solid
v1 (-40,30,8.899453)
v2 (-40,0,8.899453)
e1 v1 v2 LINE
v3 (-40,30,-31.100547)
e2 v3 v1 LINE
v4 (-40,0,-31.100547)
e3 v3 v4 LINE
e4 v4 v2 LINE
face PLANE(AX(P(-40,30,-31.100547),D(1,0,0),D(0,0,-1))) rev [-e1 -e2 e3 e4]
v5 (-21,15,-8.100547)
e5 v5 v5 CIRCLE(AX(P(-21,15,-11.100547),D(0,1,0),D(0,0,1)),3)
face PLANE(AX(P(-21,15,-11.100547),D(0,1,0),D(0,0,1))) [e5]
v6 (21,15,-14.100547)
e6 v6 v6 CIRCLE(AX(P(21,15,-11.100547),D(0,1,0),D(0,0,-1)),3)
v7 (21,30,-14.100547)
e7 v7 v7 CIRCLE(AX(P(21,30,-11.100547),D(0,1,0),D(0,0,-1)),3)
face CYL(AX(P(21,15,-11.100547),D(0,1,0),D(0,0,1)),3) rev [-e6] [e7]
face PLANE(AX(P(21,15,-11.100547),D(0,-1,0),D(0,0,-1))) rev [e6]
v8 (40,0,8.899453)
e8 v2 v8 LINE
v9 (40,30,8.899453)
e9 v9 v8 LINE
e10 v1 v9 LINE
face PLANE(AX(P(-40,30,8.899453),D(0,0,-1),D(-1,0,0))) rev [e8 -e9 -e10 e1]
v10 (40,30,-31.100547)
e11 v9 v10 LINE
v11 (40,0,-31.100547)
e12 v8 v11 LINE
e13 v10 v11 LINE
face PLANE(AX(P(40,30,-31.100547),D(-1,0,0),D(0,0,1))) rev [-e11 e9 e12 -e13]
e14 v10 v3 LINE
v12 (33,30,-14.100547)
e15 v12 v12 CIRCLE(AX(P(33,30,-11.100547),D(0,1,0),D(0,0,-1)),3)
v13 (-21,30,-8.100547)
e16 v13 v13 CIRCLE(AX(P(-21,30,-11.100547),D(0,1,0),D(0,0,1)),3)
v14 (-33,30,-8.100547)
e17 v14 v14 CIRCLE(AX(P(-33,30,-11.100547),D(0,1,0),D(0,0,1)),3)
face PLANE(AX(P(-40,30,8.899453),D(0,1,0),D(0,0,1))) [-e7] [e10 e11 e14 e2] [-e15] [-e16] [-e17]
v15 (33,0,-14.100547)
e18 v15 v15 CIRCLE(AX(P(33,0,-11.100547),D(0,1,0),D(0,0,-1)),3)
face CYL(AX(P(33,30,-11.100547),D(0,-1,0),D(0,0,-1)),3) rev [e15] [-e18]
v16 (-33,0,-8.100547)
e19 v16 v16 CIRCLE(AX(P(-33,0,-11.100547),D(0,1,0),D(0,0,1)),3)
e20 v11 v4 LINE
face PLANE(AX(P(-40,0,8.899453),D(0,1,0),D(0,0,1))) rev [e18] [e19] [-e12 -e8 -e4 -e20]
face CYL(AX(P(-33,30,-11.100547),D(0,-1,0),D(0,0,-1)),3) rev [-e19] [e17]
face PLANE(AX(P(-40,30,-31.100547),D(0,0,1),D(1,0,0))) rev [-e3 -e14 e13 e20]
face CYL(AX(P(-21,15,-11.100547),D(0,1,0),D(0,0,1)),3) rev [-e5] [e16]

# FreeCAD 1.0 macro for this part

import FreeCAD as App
import Part
import Sketcher


def add_polygon(sketch, points):
    """Adds a closed chain of lines whose ends are joined by coincident constraints."""
    first, n = sketch.GeometryCount, len(points)
    for a, b in zip(points, points[1:] + points[:1]):
        sketch.addGeometry(Part.LineSegment(App.Vector(*a, 0), App.Vector(*b, 0)), False)
    for i in range(n):
        sketch.addConstraint(Sketcher.Constraint("Coincident", first + i, 2, first + (i + 1) % n, 1))

doc = App.newDocument("Part")
body = doc.addObject("PartDesign::Body", "Body")

sketch1 = body.newObject("Sketcher::SketchObject", "Sketch")
sketch1.AttachmentSupport = (doc.getObject("XZ_Plane"), [""])
sketch1.MapMode = "FlatFace"
add_polygon(sketch1, [(-40, -31.100547), (-40, 8.899453), (40, 8.899453), (40, -31.100547)])
sketch1.addGeometry(Part.Circle(App.Vector(-33, -11.100547, 0), App.Vector(0, 0, 1), 3), False)
sketch1.addGeometry(Part.Circle(App.Vector(33, -11.100547, 0), App.Vector(0, 0, 1), 3), False)
sketch1.addConstraint([
    Sketcher.Constraint("Vertical", 0),
    Sketcher.Constraint("Horizontal", 1),
    Sketcher.Constraint("Vertical", 2),
    Sketcher.Constraint("Horizontal", 3),
    Sketcher.Constraint("Equal", 4, 5),
    Sketcher.Constraint("Symmetric", 4, 3, 5, 3, -2),
    Sketcher.Constraint("Diameter", 4, 6.0),
    Sketcher.Constraint("DistanceX", 1, 1, 1, 2, 80.0),
    Sketcher.Constraint("DistanceY", 0, 1, 0, 2, 40.0),
    Sketcher.Constraint("DistanceX", 4, 3, -1, 1, 33.0),
    Sketcher.Constraint("DistanceX", 0, 2, -1, 1, 40.0),
    Sketcher.Constraint("DistanceY", 4, 3, 0, 2, 20.0),
    Sketcher.Constraint("DistanceY", 4, 3, -1, 1, 11.100547),
])
pad1 = body.newObject("PartDesign::Pad", "Pad")
pad1.Profile = sketch1
pad1.Length = 30
pad1.Reversed = True

sketch2 = body.newObject("Sketcher::SketchObject", "Sketch001")
sketch2.AttachmentSupport = (doc.getObject("XZ_Plane"), [""])
sketch2.MapMode = "FlatFace"
sketch2.AttachmentOffset = App.Placement(App.Vector(0, 0, -30), App.Rotation())
sketch2.addGeometry([
    Part.Circle(App.Vector(-21, -11.100547, 0), App.Vector(0, 0, 1), 3),
    Part.Circle(App.Vector(21, -11.100547, 0), App.Vector(0, 0, 1), 3),
], False)
sketch2.addConstraint([
    Sketcher.Constraint("Equal", 0, 1),
    Sketcher.Constraint("Symmetric", 0, 3, 1, 3, -2),
    Sketcher.Constraint("Diameter", 0, 6.0),
    Sketcher.Constraint("DistanceX", 0, 3, -1, 1, 21.0),
    Sketcher.Constraint("DistanceY", 0, 3, -1, 1, 11.100547),
])
pocket1 = body.newObject("PartDesign::Pocket", "Pocket")
pocket1.Profile = sketch2
pocket1.Length = 15
pocket1.Reversed = True

doc.recompute()
